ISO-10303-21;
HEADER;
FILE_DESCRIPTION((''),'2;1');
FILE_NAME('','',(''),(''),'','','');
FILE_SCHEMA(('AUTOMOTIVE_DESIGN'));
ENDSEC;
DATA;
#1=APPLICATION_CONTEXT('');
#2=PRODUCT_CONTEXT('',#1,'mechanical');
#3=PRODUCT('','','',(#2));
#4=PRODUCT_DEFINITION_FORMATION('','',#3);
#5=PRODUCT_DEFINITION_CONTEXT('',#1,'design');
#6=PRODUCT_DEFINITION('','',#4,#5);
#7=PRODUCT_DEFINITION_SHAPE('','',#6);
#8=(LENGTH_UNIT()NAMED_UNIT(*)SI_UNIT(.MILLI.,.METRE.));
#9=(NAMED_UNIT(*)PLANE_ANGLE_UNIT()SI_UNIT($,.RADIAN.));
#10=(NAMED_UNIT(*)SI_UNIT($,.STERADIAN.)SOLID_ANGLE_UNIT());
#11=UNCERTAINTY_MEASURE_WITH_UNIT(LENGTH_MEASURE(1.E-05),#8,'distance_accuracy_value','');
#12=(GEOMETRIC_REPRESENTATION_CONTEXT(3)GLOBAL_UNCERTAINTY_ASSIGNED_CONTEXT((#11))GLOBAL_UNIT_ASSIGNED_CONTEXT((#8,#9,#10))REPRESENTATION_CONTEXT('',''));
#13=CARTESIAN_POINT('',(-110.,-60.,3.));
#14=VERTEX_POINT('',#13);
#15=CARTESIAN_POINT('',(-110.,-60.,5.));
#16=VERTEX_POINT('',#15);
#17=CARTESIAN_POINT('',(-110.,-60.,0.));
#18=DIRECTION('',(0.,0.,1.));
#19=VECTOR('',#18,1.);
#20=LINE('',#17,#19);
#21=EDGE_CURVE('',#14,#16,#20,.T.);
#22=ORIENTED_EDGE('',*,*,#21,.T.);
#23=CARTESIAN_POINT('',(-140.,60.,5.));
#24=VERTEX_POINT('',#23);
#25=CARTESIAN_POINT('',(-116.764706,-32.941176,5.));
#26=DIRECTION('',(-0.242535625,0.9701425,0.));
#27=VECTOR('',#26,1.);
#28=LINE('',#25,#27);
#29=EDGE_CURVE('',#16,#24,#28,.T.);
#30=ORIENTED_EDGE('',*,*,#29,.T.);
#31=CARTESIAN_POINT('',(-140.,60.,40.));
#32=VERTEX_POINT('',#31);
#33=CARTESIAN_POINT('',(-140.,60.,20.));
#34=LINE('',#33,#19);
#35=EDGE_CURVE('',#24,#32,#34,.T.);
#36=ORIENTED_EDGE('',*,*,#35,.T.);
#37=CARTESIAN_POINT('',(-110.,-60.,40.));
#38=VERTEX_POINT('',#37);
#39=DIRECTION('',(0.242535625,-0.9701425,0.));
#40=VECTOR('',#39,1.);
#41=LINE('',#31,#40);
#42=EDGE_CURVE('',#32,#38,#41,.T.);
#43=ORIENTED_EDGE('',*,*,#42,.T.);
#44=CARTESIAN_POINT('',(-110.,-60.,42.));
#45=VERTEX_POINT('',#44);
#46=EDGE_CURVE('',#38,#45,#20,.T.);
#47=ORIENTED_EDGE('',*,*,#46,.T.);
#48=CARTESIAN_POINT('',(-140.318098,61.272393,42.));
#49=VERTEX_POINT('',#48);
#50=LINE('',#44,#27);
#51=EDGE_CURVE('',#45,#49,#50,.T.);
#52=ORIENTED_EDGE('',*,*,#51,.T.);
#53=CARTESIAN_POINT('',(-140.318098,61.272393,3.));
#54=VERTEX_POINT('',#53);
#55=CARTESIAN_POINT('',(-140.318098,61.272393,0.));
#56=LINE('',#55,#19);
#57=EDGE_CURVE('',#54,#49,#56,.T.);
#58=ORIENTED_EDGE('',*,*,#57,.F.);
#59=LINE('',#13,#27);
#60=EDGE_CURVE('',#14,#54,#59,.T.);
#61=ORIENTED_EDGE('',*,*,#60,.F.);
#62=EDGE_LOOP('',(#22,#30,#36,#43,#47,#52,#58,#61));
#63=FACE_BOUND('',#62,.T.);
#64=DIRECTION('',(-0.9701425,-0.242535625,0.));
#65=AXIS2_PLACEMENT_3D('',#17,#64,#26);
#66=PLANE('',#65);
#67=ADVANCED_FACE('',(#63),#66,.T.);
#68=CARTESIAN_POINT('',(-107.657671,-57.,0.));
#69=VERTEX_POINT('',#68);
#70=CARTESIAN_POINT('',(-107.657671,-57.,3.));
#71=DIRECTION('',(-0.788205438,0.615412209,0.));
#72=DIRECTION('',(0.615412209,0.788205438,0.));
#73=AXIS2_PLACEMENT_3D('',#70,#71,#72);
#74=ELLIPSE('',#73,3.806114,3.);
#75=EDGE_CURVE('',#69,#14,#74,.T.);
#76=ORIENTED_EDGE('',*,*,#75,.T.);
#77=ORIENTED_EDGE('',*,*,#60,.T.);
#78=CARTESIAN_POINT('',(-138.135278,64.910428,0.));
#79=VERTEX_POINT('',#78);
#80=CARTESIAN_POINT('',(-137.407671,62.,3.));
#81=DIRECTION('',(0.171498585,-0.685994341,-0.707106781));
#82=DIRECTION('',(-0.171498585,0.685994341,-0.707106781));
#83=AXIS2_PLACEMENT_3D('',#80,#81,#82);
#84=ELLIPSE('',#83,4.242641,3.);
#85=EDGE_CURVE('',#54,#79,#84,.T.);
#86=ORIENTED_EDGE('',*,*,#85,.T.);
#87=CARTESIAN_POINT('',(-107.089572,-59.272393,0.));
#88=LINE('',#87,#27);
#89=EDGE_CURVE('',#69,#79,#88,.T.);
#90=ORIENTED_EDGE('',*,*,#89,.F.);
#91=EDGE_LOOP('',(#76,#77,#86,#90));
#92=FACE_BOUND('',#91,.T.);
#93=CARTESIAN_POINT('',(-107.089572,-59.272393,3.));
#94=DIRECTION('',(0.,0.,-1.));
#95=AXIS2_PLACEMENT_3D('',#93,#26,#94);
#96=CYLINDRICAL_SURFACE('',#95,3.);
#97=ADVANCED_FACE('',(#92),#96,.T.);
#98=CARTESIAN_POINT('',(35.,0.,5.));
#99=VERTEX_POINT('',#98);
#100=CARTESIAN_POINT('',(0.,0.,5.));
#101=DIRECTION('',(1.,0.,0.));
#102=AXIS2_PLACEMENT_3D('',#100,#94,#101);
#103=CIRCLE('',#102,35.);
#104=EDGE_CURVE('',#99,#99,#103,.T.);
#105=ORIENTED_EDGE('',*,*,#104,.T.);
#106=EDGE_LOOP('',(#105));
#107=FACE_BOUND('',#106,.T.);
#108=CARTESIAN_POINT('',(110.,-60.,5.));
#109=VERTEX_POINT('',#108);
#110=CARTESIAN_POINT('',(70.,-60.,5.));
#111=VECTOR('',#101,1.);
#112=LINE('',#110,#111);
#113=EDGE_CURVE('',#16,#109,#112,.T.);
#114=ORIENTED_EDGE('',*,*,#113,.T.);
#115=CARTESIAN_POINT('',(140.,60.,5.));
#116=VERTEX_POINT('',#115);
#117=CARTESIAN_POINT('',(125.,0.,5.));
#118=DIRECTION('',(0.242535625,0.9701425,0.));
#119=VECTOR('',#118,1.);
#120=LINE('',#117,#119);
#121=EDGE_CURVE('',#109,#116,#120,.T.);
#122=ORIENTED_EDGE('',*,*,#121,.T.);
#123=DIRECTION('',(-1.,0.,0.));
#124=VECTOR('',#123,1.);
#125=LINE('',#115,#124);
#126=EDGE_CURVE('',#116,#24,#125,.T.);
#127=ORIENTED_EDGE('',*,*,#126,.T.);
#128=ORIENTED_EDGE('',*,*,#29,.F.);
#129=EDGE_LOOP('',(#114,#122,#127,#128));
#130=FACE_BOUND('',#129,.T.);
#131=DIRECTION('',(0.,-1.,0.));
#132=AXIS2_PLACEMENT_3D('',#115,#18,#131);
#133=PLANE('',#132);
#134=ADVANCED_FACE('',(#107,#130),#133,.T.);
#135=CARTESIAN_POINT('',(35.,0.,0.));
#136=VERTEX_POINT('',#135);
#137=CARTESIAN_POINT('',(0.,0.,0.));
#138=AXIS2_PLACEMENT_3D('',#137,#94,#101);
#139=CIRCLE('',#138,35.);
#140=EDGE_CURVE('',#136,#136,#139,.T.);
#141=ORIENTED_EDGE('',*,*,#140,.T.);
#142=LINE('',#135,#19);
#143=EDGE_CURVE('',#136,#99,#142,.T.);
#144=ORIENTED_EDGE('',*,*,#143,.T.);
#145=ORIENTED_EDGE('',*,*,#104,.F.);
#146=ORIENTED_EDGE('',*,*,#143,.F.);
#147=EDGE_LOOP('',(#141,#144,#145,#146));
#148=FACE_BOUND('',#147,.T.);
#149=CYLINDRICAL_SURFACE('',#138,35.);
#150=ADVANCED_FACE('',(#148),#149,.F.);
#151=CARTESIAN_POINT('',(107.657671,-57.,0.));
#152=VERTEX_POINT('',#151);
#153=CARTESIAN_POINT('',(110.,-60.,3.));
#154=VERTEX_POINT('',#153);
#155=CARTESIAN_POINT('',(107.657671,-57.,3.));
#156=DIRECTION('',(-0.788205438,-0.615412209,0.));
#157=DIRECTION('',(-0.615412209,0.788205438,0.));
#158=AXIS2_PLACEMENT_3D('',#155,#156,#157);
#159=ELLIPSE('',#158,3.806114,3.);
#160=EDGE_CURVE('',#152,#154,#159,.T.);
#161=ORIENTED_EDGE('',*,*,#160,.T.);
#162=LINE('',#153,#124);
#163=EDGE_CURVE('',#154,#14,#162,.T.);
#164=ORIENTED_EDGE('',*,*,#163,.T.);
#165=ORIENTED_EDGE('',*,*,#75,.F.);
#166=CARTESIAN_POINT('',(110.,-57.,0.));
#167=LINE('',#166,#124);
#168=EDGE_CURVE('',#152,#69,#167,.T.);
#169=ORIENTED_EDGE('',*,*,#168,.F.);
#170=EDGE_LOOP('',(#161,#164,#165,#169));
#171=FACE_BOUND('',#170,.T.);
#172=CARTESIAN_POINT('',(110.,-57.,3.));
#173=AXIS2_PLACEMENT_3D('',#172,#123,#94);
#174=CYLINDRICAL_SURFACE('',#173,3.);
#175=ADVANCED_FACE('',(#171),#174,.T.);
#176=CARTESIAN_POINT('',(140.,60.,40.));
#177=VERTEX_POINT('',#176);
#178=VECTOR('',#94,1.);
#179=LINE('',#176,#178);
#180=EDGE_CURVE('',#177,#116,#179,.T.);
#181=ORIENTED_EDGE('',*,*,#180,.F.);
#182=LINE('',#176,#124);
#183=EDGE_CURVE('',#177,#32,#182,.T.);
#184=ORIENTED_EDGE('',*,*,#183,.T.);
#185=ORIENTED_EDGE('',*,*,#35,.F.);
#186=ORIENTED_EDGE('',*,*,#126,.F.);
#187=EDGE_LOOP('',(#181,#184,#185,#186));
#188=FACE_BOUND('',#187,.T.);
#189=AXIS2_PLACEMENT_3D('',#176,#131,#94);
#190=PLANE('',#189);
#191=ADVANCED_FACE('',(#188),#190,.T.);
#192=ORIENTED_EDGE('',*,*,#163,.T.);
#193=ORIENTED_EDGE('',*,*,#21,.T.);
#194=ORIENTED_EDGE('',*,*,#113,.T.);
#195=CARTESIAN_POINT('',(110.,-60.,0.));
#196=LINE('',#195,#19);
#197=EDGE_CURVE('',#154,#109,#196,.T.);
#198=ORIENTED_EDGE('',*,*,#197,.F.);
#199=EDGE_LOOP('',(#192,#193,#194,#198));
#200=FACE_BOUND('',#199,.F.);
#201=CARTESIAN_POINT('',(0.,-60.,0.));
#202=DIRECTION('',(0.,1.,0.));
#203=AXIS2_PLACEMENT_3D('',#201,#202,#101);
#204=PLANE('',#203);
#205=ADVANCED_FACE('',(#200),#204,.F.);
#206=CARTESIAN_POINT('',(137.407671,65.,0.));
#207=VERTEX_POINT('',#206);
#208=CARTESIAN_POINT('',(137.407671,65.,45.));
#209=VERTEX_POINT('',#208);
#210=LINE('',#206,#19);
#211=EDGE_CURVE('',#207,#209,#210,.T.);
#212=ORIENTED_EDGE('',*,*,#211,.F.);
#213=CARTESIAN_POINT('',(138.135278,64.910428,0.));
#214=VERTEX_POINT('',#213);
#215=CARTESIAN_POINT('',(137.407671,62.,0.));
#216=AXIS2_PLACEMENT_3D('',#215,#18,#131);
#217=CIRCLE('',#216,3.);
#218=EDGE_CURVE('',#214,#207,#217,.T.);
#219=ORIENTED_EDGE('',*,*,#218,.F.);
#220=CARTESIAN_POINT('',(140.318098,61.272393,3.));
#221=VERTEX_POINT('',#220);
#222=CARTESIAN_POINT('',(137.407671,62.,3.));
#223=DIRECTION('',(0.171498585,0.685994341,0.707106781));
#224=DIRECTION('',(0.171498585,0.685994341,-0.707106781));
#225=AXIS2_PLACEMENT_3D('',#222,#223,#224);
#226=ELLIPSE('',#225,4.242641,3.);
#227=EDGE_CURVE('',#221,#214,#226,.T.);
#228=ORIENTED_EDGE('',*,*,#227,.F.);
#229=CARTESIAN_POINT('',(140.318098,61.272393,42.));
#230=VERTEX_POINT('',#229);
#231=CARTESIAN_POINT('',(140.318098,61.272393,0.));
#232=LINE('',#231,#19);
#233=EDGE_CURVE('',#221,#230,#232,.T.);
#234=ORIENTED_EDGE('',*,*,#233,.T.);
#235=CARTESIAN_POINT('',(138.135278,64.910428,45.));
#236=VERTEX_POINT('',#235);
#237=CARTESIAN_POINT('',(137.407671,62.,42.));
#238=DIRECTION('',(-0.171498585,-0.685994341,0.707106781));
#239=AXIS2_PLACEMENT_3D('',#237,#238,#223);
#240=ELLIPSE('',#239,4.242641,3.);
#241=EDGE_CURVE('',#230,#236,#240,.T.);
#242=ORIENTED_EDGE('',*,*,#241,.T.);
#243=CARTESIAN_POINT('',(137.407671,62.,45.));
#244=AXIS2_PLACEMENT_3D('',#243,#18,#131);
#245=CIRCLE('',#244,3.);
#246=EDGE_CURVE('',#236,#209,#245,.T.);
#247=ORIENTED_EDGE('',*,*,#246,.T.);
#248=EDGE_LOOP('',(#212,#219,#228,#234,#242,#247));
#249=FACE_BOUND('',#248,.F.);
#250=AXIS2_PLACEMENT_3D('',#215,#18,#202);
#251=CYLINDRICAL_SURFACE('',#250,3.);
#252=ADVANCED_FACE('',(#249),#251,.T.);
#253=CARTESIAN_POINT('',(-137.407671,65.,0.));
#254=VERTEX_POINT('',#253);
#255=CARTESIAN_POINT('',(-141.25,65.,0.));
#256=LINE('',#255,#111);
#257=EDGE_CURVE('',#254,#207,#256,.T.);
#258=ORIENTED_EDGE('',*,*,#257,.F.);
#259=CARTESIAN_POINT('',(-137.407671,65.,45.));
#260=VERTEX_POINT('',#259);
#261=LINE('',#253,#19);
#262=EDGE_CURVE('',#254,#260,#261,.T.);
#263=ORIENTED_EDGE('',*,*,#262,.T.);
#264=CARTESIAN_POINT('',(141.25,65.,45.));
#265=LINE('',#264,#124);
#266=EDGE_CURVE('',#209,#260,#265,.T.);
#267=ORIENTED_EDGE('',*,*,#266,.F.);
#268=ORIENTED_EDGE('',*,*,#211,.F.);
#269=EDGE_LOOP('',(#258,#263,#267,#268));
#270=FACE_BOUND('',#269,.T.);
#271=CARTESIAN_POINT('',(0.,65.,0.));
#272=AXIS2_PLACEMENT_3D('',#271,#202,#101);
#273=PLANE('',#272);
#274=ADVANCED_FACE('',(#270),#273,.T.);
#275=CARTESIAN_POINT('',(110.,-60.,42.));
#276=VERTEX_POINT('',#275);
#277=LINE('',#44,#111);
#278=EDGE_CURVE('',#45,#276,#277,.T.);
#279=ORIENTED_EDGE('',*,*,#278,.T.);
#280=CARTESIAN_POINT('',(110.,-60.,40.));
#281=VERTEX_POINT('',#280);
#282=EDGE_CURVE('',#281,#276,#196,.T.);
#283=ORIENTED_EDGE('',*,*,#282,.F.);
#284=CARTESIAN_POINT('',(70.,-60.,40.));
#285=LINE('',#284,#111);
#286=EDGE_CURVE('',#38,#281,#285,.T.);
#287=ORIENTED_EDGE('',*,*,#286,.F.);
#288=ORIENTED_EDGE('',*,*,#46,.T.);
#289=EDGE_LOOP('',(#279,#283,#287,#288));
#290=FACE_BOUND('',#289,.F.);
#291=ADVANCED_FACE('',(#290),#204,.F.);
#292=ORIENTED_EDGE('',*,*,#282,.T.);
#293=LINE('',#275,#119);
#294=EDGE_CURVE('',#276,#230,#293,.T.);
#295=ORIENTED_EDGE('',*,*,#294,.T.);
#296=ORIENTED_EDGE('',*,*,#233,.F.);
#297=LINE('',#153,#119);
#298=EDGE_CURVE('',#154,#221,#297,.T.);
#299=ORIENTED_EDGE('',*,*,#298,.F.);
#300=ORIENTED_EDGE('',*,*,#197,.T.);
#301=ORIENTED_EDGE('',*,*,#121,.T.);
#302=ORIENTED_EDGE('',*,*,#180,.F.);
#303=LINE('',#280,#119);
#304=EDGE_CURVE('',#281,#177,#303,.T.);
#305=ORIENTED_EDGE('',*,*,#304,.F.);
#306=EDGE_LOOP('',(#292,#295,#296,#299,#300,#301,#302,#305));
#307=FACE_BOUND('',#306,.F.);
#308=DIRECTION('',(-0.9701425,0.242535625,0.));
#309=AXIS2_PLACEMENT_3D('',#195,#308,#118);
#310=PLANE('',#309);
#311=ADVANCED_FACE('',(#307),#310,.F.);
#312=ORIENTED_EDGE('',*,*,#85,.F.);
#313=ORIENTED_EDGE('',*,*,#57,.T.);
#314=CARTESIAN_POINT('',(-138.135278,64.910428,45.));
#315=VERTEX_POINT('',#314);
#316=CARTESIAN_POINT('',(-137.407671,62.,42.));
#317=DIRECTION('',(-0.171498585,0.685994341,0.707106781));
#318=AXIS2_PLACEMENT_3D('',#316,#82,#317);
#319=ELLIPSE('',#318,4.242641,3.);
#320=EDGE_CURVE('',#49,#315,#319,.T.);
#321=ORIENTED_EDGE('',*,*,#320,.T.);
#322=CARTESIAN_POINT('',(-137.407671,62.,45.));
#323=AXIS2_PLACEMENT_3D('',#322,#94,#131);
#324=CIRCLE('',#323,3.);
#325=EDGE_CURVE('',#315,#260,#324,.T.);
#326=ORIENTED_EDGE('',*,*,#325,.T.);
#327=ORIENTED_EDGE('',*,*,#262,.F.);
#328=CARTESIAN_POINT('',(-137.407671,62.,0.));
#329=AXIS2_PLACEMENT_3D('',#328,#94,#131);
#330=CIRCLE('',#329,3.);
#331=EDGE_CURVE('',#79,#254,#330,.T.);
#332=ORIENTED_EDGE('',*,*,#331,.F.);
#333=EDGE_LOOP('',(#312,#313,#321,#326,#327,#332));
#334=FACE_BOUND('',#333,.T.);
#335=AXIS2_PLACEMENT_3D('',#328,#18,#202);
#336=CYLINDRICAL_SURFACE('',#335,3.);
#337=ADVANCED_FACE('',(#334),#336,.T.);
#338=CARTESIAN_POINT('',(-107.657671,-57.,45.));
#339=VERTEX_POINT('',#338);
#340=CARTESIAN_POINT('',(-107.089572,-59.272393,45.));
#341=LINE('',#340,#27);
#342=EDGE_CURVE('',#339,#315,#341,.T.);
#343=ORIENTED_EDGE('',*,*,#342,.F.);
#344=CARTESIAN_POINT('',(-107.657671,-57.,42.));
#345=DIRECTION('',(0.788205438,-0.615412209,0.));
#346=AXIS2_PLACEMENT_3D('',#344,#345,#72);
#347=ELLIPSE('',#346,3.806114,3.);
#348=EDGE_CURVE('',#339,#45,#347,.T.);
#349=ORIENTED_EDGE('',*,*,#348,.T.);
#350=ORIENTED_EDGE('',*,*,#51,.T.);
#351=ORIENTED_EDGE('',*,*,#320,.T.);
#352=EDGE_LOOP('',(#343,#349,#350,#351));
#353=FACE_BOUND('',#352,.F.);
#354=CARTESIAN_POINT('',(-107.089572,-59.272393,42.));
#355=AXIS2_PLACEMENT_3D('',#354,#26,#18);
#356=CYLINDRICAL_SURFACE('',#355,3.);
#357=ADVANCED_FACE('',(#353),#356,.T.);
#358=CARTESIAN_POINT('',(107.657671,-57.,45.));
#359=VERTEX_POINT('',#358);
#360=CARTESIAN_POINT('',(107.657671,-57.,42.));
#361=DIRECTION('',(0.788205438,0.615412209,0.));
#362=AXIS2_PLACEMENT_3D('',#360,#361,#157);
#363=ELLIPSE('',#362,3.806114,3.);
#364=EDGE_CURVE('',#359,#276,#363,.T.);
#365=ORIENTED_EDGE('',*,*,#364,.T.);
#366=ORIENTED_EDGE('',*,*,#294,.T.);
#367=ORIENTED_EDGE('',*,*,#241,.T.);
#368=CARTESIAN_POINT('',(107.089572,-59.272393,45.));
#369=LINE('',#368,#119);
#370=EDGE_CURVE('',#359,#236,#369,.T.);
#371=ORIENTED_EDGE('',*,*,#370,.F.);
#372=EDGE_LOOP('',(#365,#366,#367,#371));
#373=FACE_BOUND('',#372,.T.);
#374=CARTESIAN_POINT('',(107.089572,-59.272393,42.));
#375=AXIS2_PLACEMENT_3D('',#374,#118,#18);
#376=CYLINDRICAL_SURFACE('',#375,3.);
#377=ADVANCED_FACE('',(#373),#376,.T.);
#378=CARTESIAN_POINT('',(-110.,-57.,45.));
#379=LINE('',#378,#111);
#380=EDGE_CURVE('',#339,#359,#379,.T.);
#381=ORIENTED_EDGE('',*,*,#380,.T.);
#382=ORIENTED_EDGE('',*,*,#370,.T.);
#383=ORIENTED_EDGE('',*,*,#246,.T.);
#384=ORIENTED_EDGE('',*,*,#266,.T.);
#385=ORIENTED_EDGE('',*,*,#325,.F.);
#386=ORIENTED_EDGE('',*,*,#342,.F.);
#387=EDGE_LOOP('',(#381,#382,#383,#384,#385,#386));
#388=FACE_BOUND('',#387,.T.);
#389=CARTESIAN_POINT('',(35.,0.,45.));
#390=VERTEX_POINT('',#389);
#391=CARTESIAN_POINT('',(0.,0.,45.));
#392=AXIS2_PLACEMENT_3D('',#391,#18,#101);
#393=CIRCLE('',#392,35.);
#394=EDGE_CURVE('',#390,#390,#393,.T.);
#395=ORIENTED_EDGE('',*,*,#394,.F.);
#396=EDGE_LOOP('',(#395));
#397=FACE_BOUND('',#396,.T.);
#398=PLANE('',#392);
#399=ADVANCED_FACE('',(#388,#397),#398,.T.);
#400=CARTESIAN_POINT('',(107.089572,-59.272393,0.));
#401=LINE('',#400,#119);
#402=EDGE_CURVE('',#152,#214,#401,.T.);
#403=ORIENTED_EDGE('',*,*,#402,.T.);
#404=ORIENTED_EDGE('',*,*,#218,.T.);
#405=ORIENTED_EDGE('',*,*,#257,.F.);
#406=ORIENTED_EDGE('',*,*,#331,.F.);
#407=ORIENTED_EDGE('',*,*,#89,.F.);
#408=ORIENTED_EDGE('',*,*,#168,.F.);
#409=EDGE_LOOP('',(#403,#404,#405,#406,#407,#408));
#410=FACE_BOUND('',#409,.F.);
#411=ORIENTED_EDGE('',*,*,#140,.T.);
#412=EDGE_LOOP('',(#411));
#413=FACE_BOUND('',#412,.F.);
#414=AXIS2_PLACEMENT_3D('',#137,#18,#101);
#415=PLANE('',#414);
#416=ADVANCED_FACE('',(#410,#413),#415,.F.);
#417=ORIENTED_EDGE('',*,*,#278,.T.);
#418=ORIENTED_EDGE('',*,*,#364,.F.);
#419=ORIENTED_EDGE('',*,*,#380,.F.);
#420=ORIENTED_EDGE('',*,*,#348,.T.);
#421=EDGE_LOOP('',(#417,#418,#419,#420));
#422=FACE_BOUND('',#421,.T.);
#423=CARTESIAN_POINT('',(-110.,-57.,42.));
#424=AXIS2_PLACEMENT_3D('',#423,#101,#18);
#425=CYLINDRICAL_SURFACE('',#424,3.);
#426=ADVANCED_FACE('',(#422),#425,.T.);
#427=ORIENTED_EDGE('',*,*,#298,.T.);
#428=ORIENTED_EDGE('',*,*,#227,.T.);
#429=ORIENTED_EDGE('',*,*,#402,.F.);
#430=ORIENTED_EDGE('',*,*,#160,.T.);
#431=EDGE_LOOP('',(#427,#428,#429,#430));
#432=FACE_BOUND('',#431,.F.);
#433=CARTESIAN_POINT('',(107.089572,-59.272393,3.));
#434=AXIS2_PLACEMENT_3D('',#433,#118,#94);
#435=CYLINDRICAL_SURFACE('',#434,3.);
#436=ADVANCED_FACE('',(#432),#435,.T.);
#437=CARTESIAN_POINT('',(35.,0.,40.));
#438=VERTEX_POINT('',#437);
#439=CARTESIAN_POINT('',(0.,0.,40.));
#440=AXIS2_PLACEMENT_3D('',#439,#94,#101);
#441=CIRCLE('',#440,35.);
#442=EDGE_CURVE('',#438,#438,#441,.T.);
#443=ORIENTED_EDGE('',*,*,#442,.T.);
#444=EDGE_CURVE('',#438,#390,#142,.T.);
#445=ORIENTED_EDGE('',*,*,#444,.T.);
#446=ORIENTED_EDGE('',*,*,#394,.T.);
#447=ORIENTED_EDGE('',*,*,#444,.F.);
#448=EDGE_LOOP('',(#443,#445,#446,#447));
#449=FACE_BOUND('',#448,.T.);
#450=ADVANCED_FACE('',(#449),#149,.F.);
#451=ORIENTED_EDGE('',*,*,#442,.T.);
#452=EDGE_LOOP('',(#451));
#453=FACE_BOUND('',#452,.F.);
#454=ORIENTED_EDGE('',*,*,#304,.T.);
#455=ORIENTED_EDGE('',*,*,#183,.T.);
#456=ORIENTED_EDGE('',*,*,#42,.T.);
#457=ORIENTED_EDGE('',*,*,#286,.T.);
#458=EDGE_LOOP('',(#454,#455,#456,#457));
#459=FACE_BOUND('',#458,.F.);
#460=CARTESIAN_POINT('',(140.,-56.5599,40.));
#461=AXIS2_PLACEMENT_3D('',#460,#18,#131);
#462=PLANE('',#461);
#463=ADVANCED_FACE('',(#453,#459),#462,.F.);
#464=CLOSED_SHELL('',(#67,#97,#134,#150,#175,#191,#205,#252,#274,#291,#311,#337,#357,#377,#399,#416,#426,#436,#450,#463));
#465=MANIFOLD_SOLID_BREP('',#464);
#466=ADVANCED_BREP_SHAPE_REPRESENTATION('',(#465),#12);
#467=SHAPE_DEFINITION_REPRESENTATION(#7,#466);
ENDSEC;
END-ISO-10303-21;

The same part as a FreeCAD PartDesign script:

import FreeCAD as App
import Part
import Sketcher

V = App.Vector


def edges_at(feature, points):
    """Names of the edges that pass closest to the given points."""
    edges = feature.Shape.Edges
    near = lambda p: min(range(len(edges)), key=lambda i: edges[i].distToShape(Part.Vertex(*p))[0])
    return sorted({f"Edge{near(p) + 1}" for p in points})


def add_polygon(sketch, points):
    """Adds a closed chain of lines whose ends are joined by coincident constraints."""
    first, n = sketch.GeometryCount, len(points)
    for a, b in zip(points, points[1:] + points[:1]):
        sketch.addGeometry(Part.LineSegment(App.Vector(*a, 0), App.Vector(*b, 0)), False)
    for i in range(n):
        sketch.addConstraint(Sketcher.Constraint("Coincident", first + i, 2, first + (i + 1) % n, 1))

doc = App.newDocument("Part")
body = doc.addObject("PartDesign::Body", "Body")

# Sketch on XY plane
sketch1 = body.newObject("Sketcher::SketchObject", "Sketch")
sketch1.AttachmentSupport = (doc.getObject("XY_Plane"), [""])
sketch1.MapMode = "FlatFace"
add_polygon(sketch1, [(141.25, 65), (-141.25, 65), (-110, -60), (110, -60)])  # lines 0-3
sketch1.addGeometry(Part.Circle(V(0, 0, 0), V(0, 0, 1), 35), False)  # 4
sketch1.addConstraint(Sketcher.Constraint("Horizontal", 0))
sketch1.addConstraint(Sketcher.Constraint("Horizontal", 2))
sketch1.addConstraint(Sketcher.Constraint("Coincident", 4, 3, -1, 1))
sketch1.addConstraint(Sketcher.Constraint("Equal", 1, 3))
sketch1.addConstraint(Sketcher.Constraint("Diameter", 4, 70.0))
sketch1.addConstraint(Sketcher.Constraint("DistanceX", 2, 1, 2, 2, 220.0))
sketch1.addConstraint(Sketcher.Constraint("DistanceX", 0, 2, 0, 1, 282.5))
sketch1.addConstraint(Sketcher.Constraint("DistanceY", -1, 1, 0, 2, 65.0))
sketch1.addConstraint(Sketcher.Constraint("DistanceX", 1, 2, -1, 1, 110.0))
sketch1.addConstraint(Sketcher.Constraint("DistanceY", 1, 2, -1, 1, 60.0))
pad1 = body.newObject("PartDesign::Pad", "Pad")
pad1.Profile = sketch1
pad1.Length = 45
doc.recompute()

fillet = body.newObject("PartDesign::Fillet", "Fillet")
fillet.Base = (pad1, edges_at(pad1, [
    (-141.25, 65, 22.5),
    (141.25, 65, 22.5),
    (125.625, 2.5, 45),
    (-125.625, 2.5, 45),
    (-125.625, 2.5, 0),
    (125.625, 2.5, 0),
    (0, -60, 0),
    (0, -60, 45),
]))
fillet.Radius = 3

# Sketch on YZ plane
sketch2 = body.newObject("Sketcher::SketchObject", "Sketch001")
sketch2.AttachmentSupport = (doc.getObject("YZ_Plane"), [""])
sketch2.MapMode = "FlatFace"
sketch2.AttachmentOffset = App.Placement(V(0, 0, 140), App.Rotation())
add_polygon(sketch2, [(60, 40), (-64.3318, 40), (-64.3318, 5), (60, 5)])  # lines 0-3
sketch2.addConstraint(Sketcher.Constraint("Horizontal", 0))
sketch2.addConstraint(Sketcher.Constraint("Vertical", 1))
sketch2.addConstraint(Sketcher.Constraint("Horizontal", 2))
sketch2.addConstraint(Sketcher.Constraint("Vertical", 3))
sketch2.addConstraint(Sketcher.Constraint("DistanceY", -1, 1, 1, 2, 5.0))
sketch2.addConstraint(Sketcher.Constraint("DistanceY", 1, 2, 1, 1, 35.0))
sketch2.addConstraint(Sketcher.Constraint("DistanceX", -1, 1, 2, 2, 60.0))
sketch2.addConstraint(Sketcher.Constraint("DistanceX", 0, 2, 0, 1, 124.3318))
pocket1 = body.newObject("PartDesign::Pocket", "Pocket")
pocket1.Profile = sketch2
pocket1.Length = 1000

doc.recompute()
